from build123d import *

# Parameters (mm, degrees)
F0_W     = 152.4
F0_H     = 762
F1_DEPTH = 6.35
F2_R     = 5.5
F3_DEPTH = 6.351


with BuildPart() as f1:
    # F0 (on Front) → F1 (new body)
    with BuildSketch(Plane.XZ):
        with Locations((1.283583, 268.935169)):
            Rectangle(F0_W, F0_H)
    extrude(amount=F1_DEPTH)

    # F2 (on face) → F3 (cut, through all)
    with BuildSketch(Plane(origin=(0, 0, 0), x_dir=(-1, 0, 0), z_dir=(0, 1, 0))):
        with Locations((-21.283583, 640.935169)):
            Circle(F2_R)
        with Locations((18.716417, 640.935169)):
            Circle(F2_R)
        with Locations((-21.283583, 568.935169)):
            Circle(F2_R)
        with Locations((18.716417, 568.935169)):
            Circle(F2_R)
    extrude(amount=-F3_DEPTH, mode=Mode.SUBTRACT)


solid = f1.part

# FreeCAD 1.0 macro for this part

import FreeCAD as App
import Part
import Sketcher

V = App.Vector
Q = App.Units.Quantity


def add_polygon(sketch, points):
    """Adds a closed chain of lines whose ends are joined by coincident constraints."""
    first, n = sketch.GeometryCount, len(points)
    for a, b in zip(points, points[1:] + points[:1]):
        sketch.addGeometry(Part.LineSegment(App.Vector(*a, 0), App.Vector(*b, 0)), False)
    for i in range(n):
        sketch.addConstraint(Sketcher.Constraint("Coincident", first + i, 2, first + (i + 1) % n, 1))

doc = App.newDocument("Part")
body = doc.addObject("PartDesign::Body", "Body")

# Sketch on XZ plane
sketch1 = doc.addObject("Sketcher::SketchObject", "Sketch")
body.addObject(sketch1)
sketch1.AttachmentSupport = (doc.XZ_Plane, [""])
sketch1.MapMode = "FlatFace"
add_polygon(sketch1, [(-75, 650), (-75, -112), (77, -112), (77, 650)])  # lines 0-3
sketch1.addConstraint(Sketcher.Constraint("Vertical", 0))
sketch1.addConstraint(Sketcher.Constraint("Horizontal", 1))
sketch1.addConstraint(Sketcher.Constraint("Vertical", 2))
sketch1.addConstraint(Sketcher.Constraint("Horizontal", 3))
sketch1.addConstraint(Sketcher.Constraint("DistanceX", 1, 1, 1, 2, Q("6 in")))
sketch1.addConstraint(Sketcher.Constraint("DistanceY", 0, 2, 0, 1, Q("30 in")))
sketch1.addConstraint(Sketcher.Constraint("DistanceY", 0, 2, -1, 1, Q("112.064831 mm")))
sketch1.addConstraint(Sketcher.Constraint("DistanceX", 0, 2, -1, 1, Q("74.916417 mm")))
pad1 = doc.addObject("PartDesign::Pad", "Pad")
body.addObject(pad1)
pad1.Profile = sketch1
pad1.Length = Q("0.25 in")

# Sketch on XZ plane
sketch2 = doc.addObject("Sketcher::SketchObject", "Sketch001")
body.addObject(sketch2)
sketch2.AttachmentSupport = (doc.XZ_Plane, [""])
sketch2.MapMode = "FlatFace"
sketch2.addGeometry(Part.Circle(V(21, 641, 0), V(0, 0, 1), 6), False)
sketch2.addGeometry(Part.Circle(V(-19, 641, 0), V(0, 0, 1), 6), False)
sketch2.addGeometry(Part.Circle(V(21, 569, 0), V(0, 0, 1), 6), False)
sketch2.addGeometry(Part.Circle(V(-19, 569, 0), V(0, 0, 1), 6), False)
sketch2.addConstraint(Sketcher.Constraint("Equal", 0, 1))
sketch2.addConstraint(Sketcher.Constraint("Equal", 1, 2))
sketch2.addConstraint(Sketcher.Constraint("Equal", 2, 3))
sketch2.addConstraint(Sketcher.Constraint("Horizontal", 0, 3, 1, 3))
sketch2.addConstraint(Sketcher.Constraint("Horizontal", 2, 3, 3, 3))
sketch2.addConstraint(Sketcher.Constraint("Vertical", 0, 3, 2, 3))
sketch2.addConstraint(Sketcher.Constraint("Vertical", 1, 3, 3, 3))
sketch2.addConstraint(Sketcher.Constraint("Diameter", 0, Q("11 mm")))
sketch2.addConstraint(Sketcher.Constraint("DistanceX", 1, 3, 0, 3, Q("40 mm")))
sketch2.addConstraint(Sketcher.Constraint("DistanceY", 2, 3, 0, 3, Q("72 mm")))
sketch2.addConstraint(Sketcher.Constraint("DistanceY", -1, 1, 0, 3, Q("640.935169 mm")))
sketch2.addConstraint(Sketcher.Constraint("DistanceX", -1, 1, 0, 3, Q("21.283583 mm")))
pocket1 = doc.addObject("PartDesign::Pocket", "Pocket")
body.addObject(pocket1)
pocket1.Profile = sketch2
pocket1.Type = "ThroughAll"
pocket1.Reversed = True

doc.recompute()
